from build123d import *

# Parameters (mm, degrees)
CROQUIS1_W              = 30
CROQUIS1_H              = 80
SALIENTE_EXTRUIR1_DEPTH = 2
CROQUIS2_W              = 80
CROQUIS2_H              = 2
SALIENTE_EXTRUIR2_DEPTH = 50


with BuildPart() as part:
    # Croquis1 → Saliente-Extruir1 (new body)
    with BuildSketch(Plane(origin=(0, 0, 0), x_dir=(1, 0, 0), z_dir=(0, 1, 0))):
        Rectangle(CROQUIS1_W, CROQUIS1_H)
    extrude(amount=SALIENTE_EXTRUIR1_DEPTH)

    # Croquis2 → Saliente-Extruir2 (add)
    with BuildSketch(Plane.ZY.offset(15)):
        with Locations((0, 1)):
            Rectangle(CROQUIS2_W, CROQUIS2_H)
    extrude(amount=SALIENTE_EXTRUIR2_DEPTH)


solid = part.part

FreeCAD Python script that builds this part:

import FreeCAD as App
import Part
import Sketcher
Q = App.Units.Quantity

doc = App.newDocument("Part")
body = doc.addObject("PartDesign::Body", "Body")

sketch1 = body.newObject("Sketcher::SketchObject", "Sketch")
sketch1.AttachmentSupport = (doc.getObject("XZ_Plane"), [""])
sketch1.MapMode = "FlatFace"
sketch1.addGeometry(Part.LineSegment(App.Vector(-15, -40, 0), App.Vector(-15, 40, 0)), False)
sketch1.addGeometry(Part.LineSegment(App.Vector(-15, 40, 0), App.Vector(15, 40, 0)), False)
sketch1.addGeometry(Part.LineSegment(App.Vector(15, 40, 0), App.Vector(15, -40, 0)), False)
sketch1.addGeometry(Part.LineSegment(App.Vector(15, -40, 0), App.Vector(-15, -40, 0)), False)
sketch1.addConstraint(Sketcher.Constraint("Coincident", 0, 2, 1, 1))
sketch1.addConstraint(Sketcher.Constraint("Coincident", 1, 2, 2, 1))
sketch1.addConstraint(Sketcher.Constraint("Coincident", 2, 2, 3, 1))
sketch1.addConstraint(Sketcher.Constraint("Coincident", 3, 2, 0, 1))
sketch1.addConstraint(Sketcher.Constraint("Vertical", 0))
sketch1.addConstraint(Sketcher.Constraint("Horizontal", 1))
sketch1.addConstraint(Sketcher.Constraint("Vertical", 2))
sketch1.addConstraint(Sketcher.Constraint("Horizontal", 3))
sketch1.addConstraint(Sketcher.Constraint("Symmetric", 0, 2, 2, 2, -1, 1))
sketch1.addConstraint(Sketcher.Constraint("DistanceX", 1, 1, 1, 2, Q("30 mm")))
sketch1.addConstraint(Sketcher.Constraint("DistanceY", 0, 1, 0, 2, Q("80 mm")))
pad1 = body.newObject("PartDesign::Pad", "Pad")
pad1.Profile = sketch1
pad1.Length = 2
pad1.Reversed = True

sketch2 = body.newObject("Sketcher::SketchObject", "Sketch001")
sketch2.AttachmentSupport = (doc.getObject("YZ_Plane"), [""])
sketch2.MapMode = "FlatFace"
sketch2.AttachmentOffset = App.Placement(App.Vector(0, 0, -15), App.Rotation())
sketch2.addGeometry(Part.LineSegment(App.Vector(2, -40, 0), App.Vector(0, -40, 0)), False)
sketch2.addGeometry(Part.LineSegment(App.Vector(0, -40, 0), App.Vector(0, 40, 0)), False)
sketch2.addGeometry(Part.LineSegment(App.Vector(0, 40, 0), App.Vector(2, 40, 0)), False)
sketch2.addGeometry(Part.LineSegment(App.Vector(2, 40, 0), App.Vector(2, -40, 0)), False)
sketch2.addConstraint(Sketcher.Constraint("Coincident", 0, 2, 1, 1))
sketch2.addConstraint(Sketcher.Constraint("Coincident", 1, 2, 2, 1))
sketch2.addConstraint(Sketcher.Constraint("Coincident", 2, 2, 3, 1))
sketch2.addConstraint(Sketcher.Constraint("Coincident", 3, 2, 0, 1))
sketch2.addConstraint(Sketcher.Constraint("Horizontal", 0))
sketch2.addConstraint(Sketcher.Constraint("Vertical", 1))
sketch2.addConstraint(Sketcher.Constraint("Horizontal", 2))
sketch2.addConstraint(Sketcher.Constraint("Vertical", 3))
sketch2.addConstraint(Sketcher.Constraint("Symmetric", 0, 2, 1, 2, -1, 1))
sketch2.addConstraint(Sketcher.Constraint("DistanceX", 0, 2, 0, 1, Q("2 mm")))
sketch2.addConstraint(Sketcher.Constraint("DistanceY", 1, 1, 1, 2, Q("80 mm")))
pad2 = body.newObject("PartDesign::Pad", "Pad001")
pad2.Profile = sketch2
pad2.Length = 50
pad2.Reversed = True

doc.recompute()
